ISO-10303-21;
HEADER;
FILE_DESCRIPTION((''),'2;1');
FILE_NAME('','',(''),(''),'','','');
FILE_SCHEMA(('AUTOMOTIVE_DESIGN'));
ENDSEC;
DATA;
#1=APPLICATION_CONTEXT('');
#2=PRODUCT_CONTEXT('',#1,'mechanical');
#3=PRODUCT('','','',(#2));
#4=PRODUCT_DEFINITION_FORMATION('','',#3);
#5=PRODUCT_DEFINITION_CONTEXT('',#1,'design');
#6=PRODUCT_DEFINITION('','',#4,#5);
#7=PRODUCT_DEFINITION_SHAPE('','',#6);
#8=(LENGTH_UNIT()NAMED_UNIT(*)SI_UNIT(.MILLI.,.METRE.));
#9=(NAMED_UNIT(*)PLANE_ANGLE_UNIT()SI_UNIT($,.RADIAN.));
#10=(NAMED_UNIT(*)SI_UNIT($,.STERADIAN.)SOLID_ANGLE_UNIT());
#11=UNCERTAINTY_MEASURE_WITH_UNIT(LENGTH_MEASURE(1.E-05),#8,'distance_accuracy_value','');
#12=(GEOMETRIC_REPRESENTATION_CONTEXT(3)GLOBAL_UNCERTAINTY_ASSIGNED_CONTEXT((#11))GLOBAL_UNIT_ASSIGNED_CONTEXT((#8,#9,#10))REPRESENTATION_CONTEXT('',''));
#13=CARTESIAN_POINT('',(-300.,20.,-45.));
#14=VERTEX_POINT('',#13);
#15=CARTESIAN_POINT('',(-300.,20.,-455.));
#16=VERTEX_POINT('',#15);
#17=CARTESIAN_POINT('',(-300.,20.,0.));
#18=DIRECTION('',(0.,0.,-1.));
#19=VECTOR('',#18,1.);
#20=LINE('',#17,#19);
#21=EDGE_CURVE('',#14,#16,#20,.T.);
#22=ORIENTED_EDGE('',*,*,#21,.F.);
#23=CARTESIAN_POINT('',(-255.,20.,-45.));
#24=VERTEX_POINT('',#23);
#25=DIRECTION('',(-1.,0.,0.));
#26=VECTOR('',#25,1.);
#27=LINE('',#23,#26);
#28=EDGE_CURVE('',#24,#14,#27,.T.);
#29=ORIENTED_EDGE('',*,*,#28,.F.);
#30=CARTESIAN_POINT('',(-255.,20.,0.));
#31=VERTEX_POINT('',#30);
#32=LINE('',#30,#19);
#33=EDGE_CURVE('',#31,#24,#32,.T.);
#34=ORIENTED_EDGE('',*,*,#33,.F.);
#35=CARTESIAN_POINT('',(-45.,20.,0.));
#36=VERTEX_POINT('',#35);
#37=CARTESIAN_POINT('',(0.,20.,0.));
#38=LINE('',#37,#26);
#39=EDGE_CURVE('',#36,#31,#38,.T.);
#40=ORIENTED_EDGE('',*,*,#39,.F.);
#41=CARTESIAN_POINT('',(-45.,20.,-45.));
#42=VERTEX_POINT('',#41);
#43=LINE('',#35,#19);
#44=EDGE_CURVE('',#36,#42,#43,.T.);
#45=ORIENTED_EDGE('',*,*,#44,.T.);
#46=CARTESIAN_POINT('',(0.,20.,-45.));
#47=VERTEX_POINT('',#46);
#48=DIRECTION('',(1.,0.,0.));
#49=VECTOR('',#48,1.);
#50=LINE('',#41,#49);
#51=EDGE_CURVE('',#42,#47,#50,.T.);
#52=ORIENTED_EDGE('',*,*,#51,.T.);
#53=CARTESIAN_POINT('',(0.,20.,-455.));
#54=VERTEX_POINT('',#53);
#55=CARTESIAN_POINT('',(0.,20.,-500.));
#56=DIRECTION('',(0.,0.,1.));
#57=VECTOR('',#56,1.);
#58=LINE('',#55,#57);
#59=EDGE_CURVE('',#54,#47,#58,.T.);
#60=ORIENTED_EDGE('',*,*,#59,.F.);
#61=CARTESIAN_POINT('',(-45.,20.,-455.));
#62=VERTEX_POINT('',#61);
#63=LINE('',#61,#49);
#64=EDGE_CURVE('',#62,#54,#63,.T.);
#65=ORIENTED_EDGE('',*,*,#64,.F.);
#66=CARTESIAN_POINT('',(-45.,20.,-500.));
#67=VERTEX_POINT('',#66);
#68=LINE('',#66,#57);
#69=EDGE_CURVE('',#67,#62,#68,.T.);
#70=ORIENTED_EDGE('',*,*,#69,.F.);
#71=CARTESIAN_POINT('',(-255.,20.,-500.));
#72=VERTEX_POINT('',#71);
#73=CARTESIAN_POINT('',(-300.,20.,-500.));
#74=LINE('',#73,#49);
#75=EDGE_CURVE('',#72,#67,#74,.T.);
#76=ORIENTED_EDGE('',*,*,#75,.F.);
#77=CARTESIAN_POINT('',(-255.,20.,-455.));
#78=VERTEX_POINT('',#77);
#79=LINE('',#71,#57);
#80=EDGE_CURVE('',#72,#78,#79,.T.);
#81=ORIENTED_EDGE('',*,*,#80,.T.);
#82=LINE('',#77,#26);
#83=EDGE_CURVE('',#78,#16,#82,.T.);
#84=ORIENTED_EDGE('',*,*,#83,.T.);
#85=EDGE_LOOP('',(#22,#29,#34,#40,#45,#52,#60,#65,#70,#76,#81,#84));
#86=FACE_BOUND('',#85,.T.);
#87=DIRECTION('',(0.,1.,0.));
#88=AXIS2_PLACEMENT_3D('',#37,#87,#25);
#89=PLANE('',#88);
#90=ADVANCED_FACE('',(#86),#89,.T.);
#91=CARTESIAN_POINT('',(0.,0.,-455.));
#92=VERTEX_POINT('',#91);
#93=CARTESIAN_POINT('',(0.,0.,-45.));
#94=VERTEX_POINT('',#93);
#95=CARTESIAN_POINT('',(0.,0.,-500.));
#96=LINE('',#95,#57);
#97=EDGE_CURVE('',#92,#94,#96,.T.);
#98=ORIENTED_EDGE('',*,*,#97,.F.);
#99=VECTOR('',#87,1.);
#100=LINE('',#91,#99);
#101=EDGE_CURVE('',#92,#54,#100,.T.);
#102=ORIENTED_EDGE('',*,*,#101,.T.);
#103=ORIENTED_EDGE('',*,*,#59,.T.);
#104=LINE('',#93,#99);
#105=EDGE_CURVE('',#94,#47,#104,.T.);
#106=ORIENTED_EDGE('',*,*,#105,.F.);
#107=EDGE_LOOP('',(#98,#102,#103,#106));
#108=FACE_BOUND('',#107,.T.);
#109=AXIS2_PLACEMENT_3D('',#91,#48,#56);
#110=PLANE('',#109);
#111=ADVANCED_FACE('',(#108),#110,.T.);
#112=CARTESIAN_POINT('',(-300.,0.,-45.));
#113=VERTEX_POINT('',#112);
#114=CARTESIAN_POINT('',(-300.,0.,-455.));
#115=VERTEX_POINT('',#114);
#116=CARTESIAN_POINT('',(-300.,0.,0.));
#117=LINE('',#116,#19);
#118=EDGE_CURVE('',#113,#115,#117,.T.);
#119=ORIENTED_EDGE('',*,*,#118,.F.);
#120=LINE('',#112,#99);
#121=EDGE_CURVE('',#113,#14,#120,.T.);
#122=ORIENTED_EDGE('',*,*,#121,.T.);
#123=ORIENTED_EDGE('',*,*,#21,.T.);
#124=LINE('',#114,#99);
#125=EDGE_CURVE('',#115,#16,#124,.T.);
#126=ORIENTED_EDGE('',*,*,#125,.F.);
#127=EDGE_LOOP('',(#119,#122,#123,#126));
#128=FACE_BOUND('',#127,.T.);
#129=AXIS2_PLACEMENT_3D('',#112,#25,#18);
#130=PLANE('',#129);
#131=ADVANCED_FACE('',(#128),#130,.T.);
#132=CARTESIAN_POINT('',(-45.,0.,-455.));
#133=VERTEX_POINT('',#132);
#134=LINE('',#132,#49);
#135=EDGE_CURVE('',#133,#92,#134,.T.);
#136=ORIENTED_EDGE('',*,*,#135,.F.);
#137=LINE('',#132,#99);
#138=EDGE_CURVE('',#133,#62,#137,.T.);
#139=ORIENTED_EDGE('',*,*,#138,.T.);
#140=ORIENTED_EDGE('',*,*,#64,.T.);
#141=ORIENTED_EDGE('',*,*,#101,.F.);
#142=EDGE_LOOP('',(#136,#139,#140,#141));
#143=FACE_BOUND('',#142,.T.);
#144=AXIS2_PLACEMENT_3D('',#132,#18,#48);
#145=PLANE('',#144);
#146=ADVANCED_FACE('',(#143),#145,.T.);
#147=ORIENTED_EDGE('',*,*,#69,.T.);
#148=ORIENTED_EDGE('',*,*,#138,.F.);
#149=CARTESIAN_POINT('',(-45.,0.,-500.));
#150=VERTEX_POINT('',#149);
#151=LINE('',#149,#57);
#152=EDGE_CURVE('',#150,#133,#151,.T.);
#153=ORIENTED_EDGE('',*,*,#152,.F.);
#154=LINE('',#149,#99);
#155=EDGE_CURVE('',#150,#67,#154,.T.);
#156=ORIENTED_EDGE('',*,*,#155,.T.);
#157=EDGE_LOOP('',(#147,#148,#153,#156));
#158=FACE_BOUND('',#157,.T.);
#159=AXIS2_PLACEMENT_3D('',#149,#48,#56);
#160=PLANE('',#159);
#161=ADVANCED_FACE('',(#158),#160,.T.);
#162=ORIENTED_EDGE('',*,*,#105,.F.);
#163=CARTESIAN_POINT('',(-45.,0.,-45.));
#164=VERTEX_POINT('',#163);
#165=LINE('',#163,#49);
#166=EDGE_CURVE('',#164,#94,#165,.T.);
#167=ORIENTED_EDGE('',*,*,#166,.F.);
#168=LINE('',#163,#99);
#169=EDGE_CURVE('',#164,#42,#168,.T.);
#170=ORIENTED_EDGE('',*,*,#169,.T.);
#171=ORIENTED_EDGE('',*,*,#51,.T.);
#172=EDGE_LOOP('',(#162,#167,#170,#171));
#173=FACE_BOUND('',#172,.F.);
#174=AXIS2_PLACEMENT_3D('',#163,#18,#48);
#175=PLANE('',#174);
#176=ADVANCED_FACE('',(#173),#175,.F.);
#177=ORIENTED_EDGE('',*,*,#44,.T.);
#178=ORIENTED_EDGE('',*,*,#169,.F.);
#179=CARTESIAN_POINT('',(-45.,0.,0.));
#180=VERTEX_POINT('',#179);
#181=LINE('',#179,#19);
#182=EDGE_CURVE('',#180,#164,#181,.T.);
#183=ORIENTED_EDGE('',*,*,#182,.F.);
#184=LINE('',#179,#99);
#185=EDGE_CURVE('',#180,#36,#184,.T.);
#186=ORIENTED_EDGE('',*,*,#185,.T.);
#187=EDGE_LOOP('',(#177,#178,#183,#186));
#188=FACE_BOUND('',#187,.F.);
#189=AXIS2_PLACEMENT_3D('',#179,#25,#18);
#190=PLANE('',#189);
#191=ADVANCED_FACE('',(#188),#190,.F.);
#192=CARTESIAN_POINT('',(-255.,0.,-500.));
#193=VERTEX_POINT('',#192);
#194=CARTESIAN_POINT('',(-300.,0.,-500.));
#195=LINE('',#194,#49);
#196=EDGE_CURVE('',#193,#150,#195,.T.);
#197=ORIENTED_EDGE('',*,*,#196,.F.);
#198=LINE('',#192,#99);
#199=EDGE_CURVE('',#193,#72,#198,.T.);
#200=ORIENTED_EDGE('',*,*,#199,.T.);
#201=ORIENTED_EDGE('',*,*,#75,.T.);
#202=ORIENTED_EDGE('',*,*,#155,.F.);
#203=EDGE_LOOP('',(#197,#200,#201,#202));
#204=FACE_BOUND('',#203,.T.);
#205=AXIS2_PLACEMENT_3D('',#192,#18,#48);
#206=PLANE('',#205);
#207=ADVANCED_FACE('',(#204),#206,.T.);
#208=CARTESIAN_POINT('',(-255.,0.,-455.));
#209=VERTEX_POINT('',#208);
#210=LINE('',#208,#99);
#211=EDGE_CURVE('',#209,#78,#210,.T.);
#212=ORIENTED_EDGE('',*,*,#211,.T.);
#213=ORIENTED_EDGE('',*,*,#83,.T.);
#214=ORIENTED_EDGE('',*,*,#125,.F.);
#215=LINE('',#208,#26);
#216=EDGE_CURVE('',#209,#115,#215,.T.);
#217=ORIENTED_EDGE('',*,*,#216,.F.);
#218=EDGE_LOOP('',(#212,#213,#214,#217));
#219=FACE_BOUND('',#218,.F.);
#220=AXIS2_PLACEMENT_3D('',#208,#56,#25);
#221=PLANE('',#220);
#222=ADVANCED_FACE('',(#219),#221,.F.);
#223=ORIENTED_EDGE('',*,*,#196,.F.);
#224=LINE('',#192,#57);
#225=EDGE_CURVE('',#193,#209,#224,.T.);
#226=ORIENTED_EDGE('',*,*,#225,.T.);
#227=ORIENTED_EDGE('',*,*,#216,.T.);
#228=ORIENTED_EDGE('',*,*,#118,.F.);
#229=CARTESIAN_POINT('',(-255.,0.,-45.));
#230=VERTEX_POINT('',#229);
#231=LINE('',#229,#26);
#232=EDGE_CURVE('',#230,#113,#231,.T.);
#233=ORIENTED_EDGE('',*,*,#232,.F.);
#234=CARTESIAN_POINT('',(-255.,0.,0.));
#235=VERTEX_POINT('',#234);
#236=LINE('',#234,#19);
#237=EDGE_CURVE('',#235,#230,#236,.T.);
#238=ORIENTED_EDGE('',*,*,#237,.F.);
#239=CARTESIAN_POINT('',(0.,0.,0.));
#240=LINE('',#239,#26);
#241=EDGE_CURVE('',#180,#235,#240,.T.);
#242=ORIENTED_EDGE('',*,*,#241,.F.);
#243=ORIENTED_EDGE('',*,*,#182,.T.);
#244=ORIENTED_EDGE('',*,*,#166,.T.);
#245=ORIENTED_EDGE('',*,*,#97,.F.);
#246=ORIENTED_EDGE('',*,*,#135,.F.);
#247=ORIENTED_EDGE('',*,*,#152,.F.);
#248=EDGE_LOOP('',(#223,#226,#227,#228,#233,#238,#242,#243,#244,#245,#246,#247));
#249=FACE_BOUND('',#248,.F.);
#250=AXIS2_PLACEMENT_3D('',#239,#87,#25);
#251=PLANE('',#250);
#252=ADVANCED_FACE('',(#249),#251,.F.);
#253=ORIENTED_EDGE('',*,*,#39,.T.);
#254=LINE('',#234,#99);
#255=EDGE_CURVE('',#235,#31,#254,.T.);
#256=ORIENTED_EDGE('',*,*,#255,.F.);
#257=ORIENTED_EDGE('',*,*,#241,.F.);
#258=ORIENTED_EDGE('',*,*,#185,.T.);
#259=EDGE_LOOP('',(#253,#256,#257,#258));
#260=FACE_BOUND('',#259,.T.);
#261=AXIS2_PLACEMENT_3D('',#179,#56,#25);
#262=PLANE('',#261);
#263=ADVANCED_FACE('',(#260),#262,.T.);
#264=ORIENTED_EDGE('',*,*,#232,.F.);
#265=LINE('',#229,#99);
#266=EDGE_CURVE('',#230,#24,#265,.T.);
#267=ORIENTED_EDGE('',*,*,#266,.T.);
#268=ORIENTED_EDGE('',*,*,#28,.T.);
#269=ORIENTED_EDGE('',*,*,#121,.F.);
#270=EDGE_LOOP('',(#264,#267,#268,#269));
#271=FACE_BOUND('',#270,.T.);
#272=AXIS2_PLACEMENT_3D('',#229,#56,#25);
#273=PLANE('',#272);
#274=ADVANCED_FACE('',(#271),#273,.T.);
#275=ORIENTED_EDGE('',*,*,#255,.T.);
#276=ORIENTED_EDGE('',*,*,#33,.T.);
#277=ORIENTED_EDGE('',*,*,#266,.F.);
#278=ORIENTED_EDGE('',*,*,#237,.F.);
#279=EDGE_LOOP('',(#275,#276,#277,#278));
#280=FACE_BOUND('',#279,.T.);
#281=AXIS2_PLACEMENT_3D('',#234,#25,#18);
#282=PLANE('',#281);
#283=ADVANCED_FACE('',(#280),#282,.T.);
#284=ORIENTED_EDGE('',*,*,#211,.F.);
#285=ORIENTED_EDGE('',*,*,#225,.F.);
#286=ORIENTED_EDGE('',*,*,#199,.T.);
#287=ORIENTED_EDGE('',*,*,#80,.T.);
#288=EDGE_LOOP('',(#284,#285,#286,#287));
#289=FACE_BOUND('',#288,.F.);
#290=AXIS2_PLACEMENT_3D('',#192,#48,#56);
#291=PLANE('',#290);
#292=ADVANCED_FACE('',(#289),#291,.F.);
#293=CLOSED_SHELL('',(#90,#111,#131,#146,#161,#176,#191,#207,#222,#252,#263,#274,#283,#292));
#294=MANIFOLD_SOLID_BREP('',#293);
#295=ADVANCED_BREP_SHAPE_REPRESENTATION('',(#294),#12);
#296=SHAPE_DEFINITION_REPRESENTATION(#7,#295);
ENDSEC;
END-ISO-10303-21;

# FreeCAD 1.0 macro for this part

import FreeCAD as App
import Part
import Sketcher
from FreeCAD import Vector


def add_polygon(sketch, points):
    """Adds a closed chain of lines whose ends are joined by coincident constraints."""
    first, n = sketch.GeometryCount, len(points)
    for a, b in zip(points, points[1:] + points[:1]):
        sketch.addGeometry(Part.LineSegment(App.Vector(*a, 0), App.Vector(*b, 0)), False)
    for i in range(n):
        sketch.addConstraint(Sketcher.Constraint("Coincident", first + i, 2, first + (i + 1) % n, 1))

doc = App.newDocument("Part")
body = doc.addObject("PartDesign::Body", "Body")

sketch1 = body.newObject("Sketcher::SketchObject", "Sketch")
sketch1.AttachmentSupport = (doc.getObject("XZ_Plane"), [""])
sketch1.MapMode = "FlatFace"
add_polygon(sketch1, [(-255, 0), (-45, 0), (-45, -45), (0, -45), (0, -455), (-45, -455), (-45, -500), (-255, -500), (-255, -455), (-300, -455), (-300, -45), (-255, -45)])
sketch1.addConstraint([
    Sketcher.Constraint("Horizontal", 0),
    Sketcher.Constraint("Vertical", 1),
    Sketcher.Constraint("Horizontal", 2),
    Sketcher.Constraint("Vertical", 3),
    Sketcher.Constraint("Horizontal", 4),
    Sketcher.Constraint("Vertical", 5),
    Sketcher.Constraint("Horizontal", 6),
    Sketcher.Constraint("Vertical", 7),
    Sketcher.Constraint("Horizontal", 8),
    Sketcher.Constraint("Vertical", 9),
    Sketcher.Constraint("Horizontal", 10),
    Sketcher.Constraint("Vertical", 11),
    Sketcher.Constraint("PointOnObject", 0, 2, -1),
    Sketcher.Constraint("PointOnObject", 2, 2, -2),
    Sketcher.Constraint("Horizontal", 4, 2, 7, 2),
    Sketcher.Constraint("Horizontal", 2, 2, 9, 2),
    Sketcher.Constraint("Vertical", 1, 2, 4, 2),
    Sketcher.Constraint("Vertical", 7, 2, 10, 2),
    Sketcher.Constraint("Equal", 4, 8),
    Sketcher.Constraint("Equal", 10, 1),
    Sketcher.Constraint("Equal", 1, 5),
    Sketcher.Constraint("DistanceX", 2, 1, 2, 2, 45.0),
    Sketcher.Constraint("DistanceY", 5, 2, -1, 1, 500.0),
    Sketcher.Constraint("DistanceX", 8, 2, -1, 1, 300.0),
])
pad1 = body.newObject("PartDesign::Pad", "Pad")
pad1.Profile = sketch1
pad1.Length = 20
pad1.Reversed = True

doc.recompute()
